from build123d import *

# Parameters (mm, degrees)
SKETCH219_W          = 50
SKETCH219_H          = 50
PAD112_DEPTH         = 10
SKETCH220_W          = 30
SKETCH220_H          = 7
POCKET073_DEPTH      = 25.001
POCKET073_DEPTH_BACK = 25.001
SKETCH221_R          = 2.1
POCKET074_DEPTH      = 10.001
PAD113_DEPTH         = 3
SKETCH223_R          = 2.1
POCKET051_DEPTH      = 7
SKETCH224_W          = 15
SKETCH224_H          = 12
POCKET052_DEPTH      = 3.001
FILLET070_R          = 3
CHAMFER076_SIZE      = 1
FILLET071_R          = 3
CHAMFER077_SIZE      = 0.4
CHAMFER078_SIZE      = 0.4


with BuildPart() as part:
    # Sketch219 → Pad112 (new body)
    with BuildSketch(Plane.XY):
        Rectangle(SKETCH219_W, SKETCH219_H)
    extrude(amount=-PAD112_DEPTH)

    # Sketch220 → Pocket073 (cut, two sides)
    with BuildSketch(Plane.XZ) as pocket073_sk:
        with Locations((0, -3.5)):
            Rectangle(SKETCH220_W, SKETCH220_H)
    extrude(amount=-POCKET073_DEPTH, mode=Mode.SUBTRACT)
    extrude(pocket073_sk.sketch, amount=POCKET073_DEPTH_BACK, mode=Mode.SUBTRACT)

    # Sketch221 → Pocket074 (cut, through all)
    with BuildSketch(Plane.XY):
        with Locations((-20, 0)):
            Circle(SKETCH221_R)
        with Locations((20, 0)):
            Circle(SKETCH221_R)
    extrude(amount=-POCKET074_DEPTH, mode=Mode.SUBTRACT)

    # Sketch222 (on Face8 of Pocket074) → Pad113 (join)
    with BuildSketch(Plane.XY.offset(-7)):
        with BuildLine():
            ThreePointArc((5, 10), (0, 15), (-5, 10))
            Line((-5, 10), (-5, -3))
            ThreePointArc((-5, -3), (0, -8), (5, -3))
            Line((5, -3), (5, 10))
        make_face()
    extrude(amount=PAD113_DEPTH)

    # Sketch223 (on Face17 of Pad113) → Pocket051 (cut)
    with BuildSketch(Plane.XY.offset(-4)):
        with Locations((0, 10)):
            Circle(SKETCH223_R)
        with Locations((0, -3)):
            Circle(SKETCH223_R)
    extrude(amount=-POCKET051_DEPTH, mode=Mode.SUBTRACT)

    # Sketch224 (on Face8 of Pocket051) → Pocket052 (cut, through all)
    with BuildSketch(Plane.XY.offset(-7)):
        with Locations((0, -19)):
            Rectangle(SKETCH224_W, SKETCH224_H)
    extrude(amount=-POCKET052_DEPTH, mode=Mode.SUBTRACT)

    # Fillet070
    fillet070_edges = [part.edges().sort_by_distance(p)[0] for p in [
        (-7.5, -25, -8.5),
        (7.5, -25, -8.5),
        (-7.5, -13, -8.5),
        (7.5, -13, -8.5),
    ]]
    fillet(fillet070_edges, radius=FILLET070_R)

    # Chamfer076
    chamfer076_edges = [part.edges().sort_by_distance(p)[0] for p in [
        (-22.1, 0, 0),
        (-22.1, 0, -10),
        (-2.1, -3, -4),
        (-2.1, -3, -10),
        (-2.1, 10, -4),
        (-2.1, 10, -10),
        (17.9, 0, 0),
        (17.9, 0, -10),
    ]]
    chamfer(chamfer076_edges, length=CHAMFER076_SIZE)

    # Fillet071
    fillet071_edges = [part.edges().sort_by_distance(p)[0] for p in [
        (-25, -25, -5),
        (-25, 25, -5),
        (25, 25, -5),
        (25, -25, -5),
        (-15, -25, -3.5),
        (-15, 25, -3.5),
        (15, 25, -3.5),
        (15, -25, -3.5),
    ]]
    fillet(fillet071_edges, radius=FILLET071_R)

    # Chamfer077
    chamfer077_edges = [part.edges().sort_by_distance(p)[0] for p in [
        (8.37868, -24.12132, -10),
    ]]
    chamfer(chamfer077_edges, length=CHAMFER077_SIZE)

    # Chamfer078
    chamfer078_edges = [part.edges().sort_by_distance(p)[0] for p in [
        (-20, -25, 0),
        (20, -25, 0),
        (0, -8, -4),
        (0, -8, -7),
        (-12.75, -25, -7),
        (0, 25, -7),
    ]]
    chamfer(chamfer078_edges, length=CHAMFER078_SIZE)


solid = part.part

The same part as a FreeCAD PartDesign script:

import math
import FreeCAD as App
import Part
import Sketcher
Q = App.Units.Quantity


def edges_at(feature, points):
    """Names of the edges that pass closest to the given points."""
    edges = feature.Shape.Edges
    near = lambda p: min(range(len(edges)), key=lambda i: edges[i].distToShape(Part.Vertex(*p))[0])
    return sorted({f"Edge{near(p) + 1}" for p in points})

doc = App.newDocument("Part")
params = doc.addObject("Spreadsheet::Sheet", "Params")
for row, (alias, value) in enumerate([
    ("sketch1_width", "50 mm"),
    ("pad1_length", "10 mm"),
    ("sketch2_width", "30 mm"),
    ("sketch2_height", "7 mm"),
    ("sketch3_diameter", "4.2 mm"),
    ("sketch4_radius", "5 mm"),
    ("sketch4_height", "13 mm"),
    ("pad2_length", "3 mm"),
    ("sketch5_diameter", "4.2 mm"),
    ("pocket3_length", "7 mm"),
    ("sketch6_width", "15 mm"),
    ("sketch6_height", "12 mm"),
    ("fillet_radius", "3 mm"),
    ("chamfer_size", "1 mm"),
    ("fillet2_radius", "3 mm"),
    ("chamfer2_size", "0.4 mm"),
    ("chamfer3_size", "0.4 mm"),
], start=1):
    params.set(f"A{row}", alias)
    params.set(f"B{row}", "=" + value)
    params.setAlias(f"B{row}", alias)

body = doc.addObject("PartDesign::Body", "Body")

sketch1 = body.newObject("Sketcher::SketchObject", "Sketch")
sketch1.AttachmentSupport = (doc.getObject("XY_Plane"), [""])
sketch1.MapMode = "FlatFace"
sketch1.addGeometry(Part.LineSegment(App.Vector(-25, 25, 0), App.Vector(-25, -25, 0)), False)
sketch1.addGeometry(Part.LineSegment(App.Vector(-25, -25, 0), App.Vector(25, -25, 0)), False)
sketch1.addGeometry(Part.LineSegment(App.Vector(25, -25, 0), App.Vector(25, 25, 0)), False)
sketch1.addGeometry(Part.LineSegment(App.Vector(25, 25, 0), App.Vector(-25, 25, 0)), False)
sketch1.addConstraint(Sketcher.Constraint("Coincident", 0, 2, 1, 1))
sketch1.addConstraint(Sketcher.Constraint("Coincident", 1, 2, 2, 1))
sketch1.addConstraint(Sketcher.Constraint("Coincident", 2, 2, 3, 1))
sketch1.addConstraint(Sketcher.Constraint("Coincident", 3, 2, 0, 1))
sketch1.addConstraint(Sketcher.Constraint("Vertical", 0))
sketch1.addConstraint(Sketcher.Constraint("Horizontal", 1))
sketch1.addConstraint(Sketcher.Constraint("Vertical", 2))
sketch1.addConstraint(Sketcher.Constraint("Horizontal", 3))
sketch1.addConstraint(Sketcher.Constraint("Symmetric", 0, 2, 2, 2, -1, 1))
sketch1.addConstraint(Sketcher.Constraint("Equal", 3, 0))
sketch1.addConstraint(Sketcher.Constraint("DistanceX", 1, 1, 1, 2, Q("50 mm")))
sketch1.setExpression("Constraints[10]", "Params.sketch1_width")
pad1 = body.newObject("PartDesign::Pad", "Pad")
pad1.Profile = sketch1
pad1.setExpression("Length", "Params.pad1_length")
pad1.Reversed = True

sketch2 = body.newObject("Sketcher::SketchObject", "Sketch001")
sketch2.AttachmentSupport = (doc.getObject("XZ_Plane"), [""])
sketch2.MapMode = "FlatFace"
sketch2.addGeometry(Part.LineSegment(App.Vector(-15, 0, 0), App.Vector(-15, -7, 0)), False)
sketch2.addGeometry(Part.LineSegment(App.Vector(-15, -7, 0), App.Vector(15, -7, 0)), False)
sketch2.addGeometry(Part.LineSegment(App.Vector(15, -7, 0), App.Vector(15, 0, 0)), False)
sketch2.addGeometry(Part.LineSegment(App.Vector(15, 0, 0), App.Vector(-15, 0, 0)), False)
sketch2.addConstraint(Sketcher.Constraint("Coincident", 0, 2, 1, 1))
sketch2.addConstraint(Sketcher.Constraint("Coincident", 1, 2, 2, 1))
sketch2.addConstraint(Sketcher.Constraint("Coincident", 2, 2, 3, 1))
sketch2.addConstraint(Sketcher.Constraint("Coincident", 3, 2, 0, 1))
sketch2.addConstraint(Sketcher.Constraint("Vertical", 0))
sketch2.addConstraint(Sketcher.Constraint("Horizontal", 1))
sketch2.addConstraint(Sketcher.Constraint("Vertical", 2))
sketch2.addConstraint(Sketcher.Constraint("Horizontal", 3))
sketch2.addConstraint(Sketcher.Constraint("Symmetric", 2, 2, 3, 2, -1, 1))
sketch2.addConstraint(Sketcher.Constraint("DistanceX", 1, 1, 1, 2, Q("30 mm")))
sketch2.addConstraint(Sketcher.Constraint("DistanceY", 0, 2, 0, 1, Q("7 mm")))
sketch2.setExpression("Constraints[9]", "Params.sketch2_width")
sketch2.setExpression("Constraints[10]", "Params.sketch2_height")
pocket1 = body.newObject("PartDesign::Pocket", "Pocket")
pocket1.Profile = sketch2
pocket1.Type = "ThroughAll"
pocket1.Midplane = True

sketch3 = body.newObject("Sketcher::SketchObject", "Sketch002")
sketch3.AttachmentSupport = (doc.getObject("XY_Plane"), [""])
sketch3.MapMode = "FlatFace"
sketch3.addGeometry(Part.Circle(App.Vector(-20, 0, 0), App.Vector(0, 0, 1), 2.1), False)
sketch3.addGeometry(Part.Circle(App.Vector(20, 0, 0), App.Vector(0, 0, 1), 2.1), False)
sketch3.addConstraint(Sketcher.Constraint("Equal", 0, 1))
sketch3.addConstraint(Sketcher.Constraint("Symmetric", 0, 3, 1, 3, -1, 1))
sketch3.addConstraint(Sketcher.Constraint("PointOnObject", 0, 3, -1))
sketch3.addConstraint(Sketcher.Constraint("Diameter", 0, Q("4.2 mm")))
sketch3.addConstraint(Sketcher.Constraint("DistanceX", 0, 3, -1, 1, Q("20 mm")))
sketch3.setExpression("Constraints[3]", "Params.sketch3_diameter")
pocket2 = body.newObject("PartDesign::Pocket", "Pocket001")
pocket2.Profile = sketch3
pocket2.Type = "ThroughAll"

sketch4 = body.newObject("Sketcher::SketchObject", "Sketch003")
sketch4.AttachmentSupport = (doc.getObject("XY_Plane"), [""])
sketch4.MapMode = "FlatFace"
sketch4.AttachmentOffset = App.Placement(App.Vector(0, 0, -7), App.Rotation())
sketch4.addGeometry(Part.ArcOfCircle(Part.Circle(App.Vector(0, 10, 0), App.Vector(0, 0, 1), 5), math.radians(0), math.radians(180)), False)
sketch4.addGeometry(Part.LineSegment(App.Vector(-5, 10, 0), App.Vector(-5, -3, 0)), False)
sketch4.addGeometry(Part.ArcOfCircle(Part.Circle(App.Vector(0, -3, 0), App.Vector(0, 0, 1), 5), math.radians(180), math.radians(360)), False)
sketch4.addGeometry(Part.LineSegment(App.Vector(5, -3, 0), App.Vector(5, 10, 0)), False)
sketch4.addConstraint(Sketcher.Constraint("Tangent", 0, 2, 1, 1))
sketch4.addConstraint(Sketcher.Constraint("Tangent", 1, 2, 2, 1))
sketch4.addConstraint(Sketcher.Constraint("Tangent", 2, 2, 3, 1))
sketch4.addConstraint(Sketcher.Constraint("Tangent", 3, 2, 0, 1))
sketch4.addConstraint(Sketcher.Constraint("Vertical", 1))
sketch4.addConstraint(Sketcher.Constraint("Vertical", 3))
sketch4.addConstraint(Sketcher.Constraint("PointOnObject", 0, 3, -2))
sketch4.addConstraint(Sketcher.Constraint("Radius", 0, Q("5 mm")))
sketch4.addConstraint(Sketcher.Constraint("DistanceY", 1, 2, 1, 1, Q("13 mm")))
sketch4.addConstraint(Sketcher.Constraint("DistanceY", -1, 1, 0, 3, Q("10 mm")))
sketch4.setExpression("Constraints[7]", "Params.sketch4_radius")
sketch4.setExpression("Constraints[8]", "Params.sketch4_height")
pad2 = body.newObject("PartDesign::Pad", "Pad001")
pad2.Profile = sketch4
pad2.setExpression("Length", "Params.pad2_length")

sketch5 = body.newObject("Sketcher::SketchObject", "Sketch004")
sketch5.AttachmentSupport = (doc.getObject("XY_Plane"), [""])
sketch5.MapMode = "FlatFace"
sketch5.AttachmentOffset = App.Placement(App.Vector(0, 0, -4), App.Rotation())
sketch5.addGeometry(Part.Circle(App.Vector(0, 10, 0), App.Vector(0, 0, 1), 2.1), False)
sketch5.addGeometry(Part.Circle(App.Vector(0, -3, 0), App.Vector(0, 0, 1), 2.1), False)
sketch5.addConstraint(Sketcher.Constraint("Equal", 0, 1))
sketch5.addConstraint(Sketcher.Constraint("PointOnObject", 0, 3, -2))
sketch5.addConstraint(Sketcher.Constraint("PointOnObject", 1, 3, -2))
sketch5.addConstraint(Sketcher.Constraint("Diameter", 0, Q("4.2 mm")))
sketch5.addConstraint(Sketcher.Constraint("DistanceY", -1, 1, 0, 3, Q("10 mm")))
sketch5.addConstraint(Sketcher.Constraint("DistanceY", 1, 3, -1, 1, Q("3 mm")))
sketch5.setExpression("Constraints[3]", "Params.sketch5_diameter")
pocket3 = body.newObject("PartDesign::Pocket", "Pocket002")
pocket3.Profile = sketch5
pocket3.setExpression("Length", "Params.pocket3_length")

sketch6 = body.newObject("Sketcher::SketchObject", "Sketch005")
sketch6.AttachmentSupport = (doc.getObject("XY_Plane"), [""])
sketch6.MapMode = "FlatFace"
sketch6.AttachmentOffset = App.Placement(App.Vector(0, 0, -7), App.Rotation())
sketch6.addGeometry(Part.LineSegment(App.Vector(-8, -13, 0), App.Vector(-8, -25, 0)), False)
sketch6.addGeometry(Part.LineSegment(App.Vector(-8, -25, 0), App.Vector(8, -25, 0)), False)
sketch6.addGeometry(Part.LineSegment(App.Vector(8, -25, 0), App.Vector(8, -13, 0)), False)
sketch6.addGeometry(Part.LineSegment(App.Vector(8, -13, 0), App.Vector(-8, -13, 0)), False)
sketch6.addConstraint(Sketcher.Constraint("Coincident", 0, 2, 1, 1))
sketch6.addConstraint(Sketcher.Constraint("Coincident", 1, 2, 2, 1))
sketch6.addConstraint(Sketcher.Constraint("Coincident", 2, 2, 3, 1))
sketch6.addConstraint(Sketcher.Constraint("Coincident", 3, 2, 0, 1))
sketch6.addConstraint(Sketcher.Constraint("Vertical", 0))
sketch6.addConstraint(Sketcher.Constraint("Horizontal", 1))
sketch6.addConstraint(Sketcher.Constraint("Vertical", 2))
sketch6.addConstraint(Sketcher.Constraint("Horizontal", 3))
sketch6.addConstraint(Sketcher.Constraint("DistanceX", 1, 1, 1, 2, Q("15 mm")))
sketch6.addConstraint(Sketcher.Constraint("DistanceY", 0, 2, 0, 1, Q("12 mm")))
sketch6.addConstraint(Sketcher.Constraint("DistanceY", 0, 2, -1, 1, Q("25 mm")))
sketch6.addConstraint(Sketcher.Constraint("DistanceX", 0, 2, -1, 1, Q("7.5 mm")))
sketch6.setExpression("Constraints[8]", "Params.sketch6_width")
sketch6.setExpression("Constraints[9]", "Params.sketch6_height")
pocket4 = body.newObject("PartDesign::Pocket", "Pocket003")
pocket4.Profile = sketch6
pocket4.Type = "ThroughAll"
doc.recompute()

fillet = body.newObject("PartDesign::Fillet", "Fillet")
fillet.Base = (pocket4, edges_at(pocket4, [
    (-7.5, -25, -8.5),
    (7.5, -25, -8.5),
    (-7.5, -13, -8.5),
    (7.5, -13, -8.5),
]))
fillet.setExpression("Radius", "Params.fillet_radius")
doc.recompute()

chamfer = body.newObject("PartDesign::Chamfer", "Chamfer")
chamfer.Base = (fillet, edges_at(fillet, [
    (-22.1, 0, 0),
    (-22.1, 0, -10),
    (-2.1, -3, -4),
    (-2.1, -3, -10),
    (-2.1, 10, -4),
    (-2.1, 10, -10),
    (17.9, 0, 0),
    (17.9, 0, -10),
]))
chamfer.setExpression("Size", "Params.chamfer_size")
doc.recompute()

fillet2 = body.newObject("PartDesign::Fillet", "Fillet001")
fillet2.Base = (chamfer, edges_at(chamfer, [
    (-25, -25, -5),
    (-25, 25, -5),
    (25, 25, -5),
    (25, -25, -5),
    (-15, -25, -3.5),
    (-15, 25, -3.5),
    (15, 25, -3.5),
    (15, -25, -3.5),
]))
fillet2.setExpression("Radius", "Params.fillet2_radius")
doc.recompute()

chamfer2 = body.newObject("PartDesign::Chamfer", "Chamfer001")
chamfer2.Base = (fillet2, edges_at(fillet2, [(8.379, -24.121, -10)]))
chamfer2.setExpression("Size", "Params.chamfer2_size")
doc.recompute()

chamfer3 = body.newObject("PartDesign::Chamfer", "Chamfer002")
chamfer3.Base = (chamfer2, edges_at(chamfer2, [
    (-20, -25, 0),
    (20, -25, 0),
    (0, -8, -4),
    (0, -8, -7),
    (-14.25, -25, -7),
    (0, 25, -7),
]))
chamfer3.setExpression("Size", "Params.chamfer3_size")

doc.recompute()
